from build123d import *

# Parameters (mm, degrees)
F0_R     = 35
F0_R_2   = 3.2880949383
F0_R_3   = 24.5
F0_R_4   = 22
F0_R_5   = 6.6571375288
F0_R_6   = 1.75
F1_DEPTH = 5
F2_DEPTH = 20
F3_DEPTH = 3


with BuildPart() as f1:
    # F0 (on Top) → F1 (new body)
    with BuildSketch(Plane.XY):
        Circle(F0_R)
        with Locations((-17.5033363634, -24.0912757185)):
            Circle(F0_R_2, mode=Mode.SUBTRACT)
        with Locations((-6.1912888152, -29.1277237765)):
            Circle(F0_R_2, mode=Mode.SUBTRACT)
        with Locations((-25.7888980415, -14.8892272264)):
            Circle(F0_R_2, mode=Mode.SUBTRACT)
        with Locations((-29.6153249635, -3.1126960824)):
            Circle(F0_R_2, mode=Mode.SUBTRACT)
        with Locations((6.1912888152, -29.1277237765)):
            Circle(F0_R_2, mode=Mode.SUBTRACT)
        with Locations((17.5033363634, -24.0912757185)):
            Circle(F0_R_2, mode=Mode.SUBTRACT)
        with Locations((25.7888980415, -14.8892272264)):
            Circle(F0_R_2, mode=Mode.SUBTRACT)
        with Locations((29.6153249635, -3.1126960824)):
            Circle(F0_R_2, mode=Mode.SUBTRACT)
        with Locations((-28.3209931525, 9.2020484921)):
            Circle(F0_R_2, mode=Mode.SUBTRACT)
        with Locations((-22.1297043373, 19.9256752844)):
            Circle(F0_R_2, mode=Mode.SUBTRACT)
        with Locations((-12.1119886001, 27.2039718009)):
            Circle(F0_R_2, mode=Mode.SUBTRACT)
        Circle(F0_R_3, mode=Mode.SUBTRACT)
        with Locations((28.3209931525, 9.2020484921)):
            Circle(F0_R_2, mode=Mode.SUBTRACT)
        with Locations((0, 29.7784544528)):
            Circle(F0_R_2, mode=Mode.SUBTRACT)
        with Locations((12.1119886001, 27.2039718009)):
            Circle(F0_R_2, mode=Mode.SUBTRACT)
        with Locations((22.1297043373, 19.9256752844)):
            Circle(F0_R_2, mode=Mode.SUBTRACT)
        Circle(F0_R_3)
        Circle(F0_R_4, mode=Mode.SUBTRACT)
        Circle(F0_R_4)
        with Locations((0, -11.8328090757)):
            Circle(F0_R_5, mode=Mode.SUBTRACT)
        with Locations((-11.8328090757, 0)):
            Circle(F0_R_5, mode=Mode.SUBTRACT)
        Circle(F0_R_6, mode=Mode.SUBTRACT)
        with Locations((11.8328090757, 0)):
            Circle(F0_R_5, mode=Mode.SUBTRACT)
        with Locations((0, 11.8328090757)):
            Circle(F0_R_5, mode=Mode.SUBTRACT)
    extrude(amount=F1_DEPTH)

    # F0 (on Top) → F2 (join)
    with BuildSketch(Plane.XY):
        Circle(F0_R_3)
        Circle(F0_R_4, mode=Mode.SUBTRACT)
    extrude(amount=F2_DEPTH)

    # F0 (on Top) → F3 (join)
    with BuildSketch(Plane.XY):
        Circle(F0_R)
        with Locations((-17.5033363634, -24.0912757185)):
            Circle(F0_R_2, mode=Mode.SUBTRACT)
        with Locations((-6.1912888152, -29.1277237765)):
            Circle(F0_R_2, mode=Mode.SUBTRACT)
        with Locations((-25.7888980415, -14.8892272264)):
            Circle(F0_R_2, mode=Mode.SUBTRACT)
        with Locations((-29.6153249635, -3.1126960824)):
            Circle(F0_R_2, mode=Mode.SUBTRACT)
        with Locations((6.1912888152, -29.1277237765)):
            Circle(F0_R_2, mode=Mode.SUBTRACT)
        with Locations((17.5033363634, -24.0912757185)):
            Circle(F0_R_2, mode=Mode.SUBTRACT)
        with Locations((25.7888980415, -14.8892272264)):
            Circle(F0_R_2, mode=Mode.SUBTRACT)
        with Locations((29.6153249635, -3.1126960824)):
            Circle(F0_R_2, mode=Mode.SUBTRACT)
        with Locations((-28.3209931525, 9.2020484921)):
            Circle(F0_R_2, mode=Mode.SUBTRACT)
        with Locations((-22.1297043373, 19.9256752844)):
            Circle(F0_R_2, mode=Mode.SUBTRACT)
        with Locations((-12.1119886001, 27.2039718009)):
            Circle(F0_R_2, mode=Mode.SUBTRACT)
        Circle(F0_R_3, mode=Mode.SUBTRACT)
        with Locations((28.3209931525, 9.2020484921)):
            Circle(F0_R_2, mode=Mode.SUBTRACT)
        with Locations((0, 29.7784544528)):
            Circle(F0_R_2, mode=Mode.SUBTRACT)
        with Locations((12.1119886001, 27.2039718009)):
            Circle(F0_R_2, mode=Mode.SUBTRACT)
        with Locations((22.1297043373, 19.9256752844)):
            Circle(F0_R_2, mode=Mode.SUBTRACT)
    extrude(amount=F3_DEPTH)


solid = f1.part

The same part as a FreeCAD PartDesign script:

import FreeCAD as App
import Part
import Sketcher

V = App.Vector
Q = App.Units.Quantity

doc = App.newDocument("Part")
body = doc.addObject("PartDesign::Body", "Body")

sketch1 = doc.addObject("Sketcher::SketchObject", "Sketch")
body.addObject(sketch1)
sketch1.AttachmentSupport = (doc.XY_Plane, [""])
sketch1.MapMode = "FlatFace"
sketch1.addGeometry([
    Part.Circle(V(0, 0, 0), V(0, 0, 1), 35),
    Part.Circle(V(-17.5, -24.1, 0), V(0, 0, 1), 3.3),
    Part.Circle(V(-6.2, -29.1, 0), V(0, 0, 1), 3.3),
    Part.Circle(V(-25.8, -14.9, 0), V(0, 0, 1), 3.3),
    Part.Circle(V(-29.6, -3.1, 0), V(0, 0, 1), 3.3),
    Part.Circle(V(-11.8, 0, 0), V(0, 0, 1), 6.7),
    Part.Circle(V(6.2, -29.1, 0), V(0, 0, 1), 3.3),
    Part.Circle(V(17.5, -24.1, 0), V(0, 0, 1), 3.3),
    Part.Circle(V(0, -11.8, 0), V(0, 0, 1), 6.7),
    Part.Circle(V(0, 0, 0), V(0, 0, 1), 1.8),
    Part.Circle(V(11.8, 0, 0), V(0, 0, 1), 6.7),
    Part.Circle(V(25.8, -14.9, 0), V(0, 0, 1), 3.3),
    Part.Circle(V(29.6, -3.1, 0), V(0, 0, 1), 3.3),
    Part.Circle(V(-28.3, 9.2, 0), V(0, 0, 1), 3.3),
    Part.Circle(V(-22.1, 19.9, 0), V(0, 0, 1), 3.3),
    Part.Circle(V(-12.1, 27.2, 0), V(0, 0, 1), 3.3),
    Part.Circle(V(0, 11.8, 0), V(0, 0, 1), 6.7),
    Part.Circle(V(28.3, 9.2, 0), V(0, 0, 1), 3.3),
    Part.Circle(V(0, 29.8, 0), V(0, 0, 1), 3.3),
    Part.Circle(V(12.1, 27.2, 0), V(0, 0, 1), 3.3),
    Part.Circle(V(22.1, 19.9, 0), V(0, 0, 1), 3.3),
], False)
sketch1.addConstraint([
    Sketcher.Constraint("Coincident", 0, 3, -1, 1),
    Sketcher.Constraint("Coincident", 9, 3, -1, 1),
    Sketcher.Constraint("Equal", 1, 2),
    Sketcher.Constraint("Equal", 2, 3),
    Sketcher.Constraint("Equal", 3, 4),
    Sketcher.Constraint("Equal", 4, 6),
    Sketcher.Constraint("Equal", 6, 7),
    Sketcher.Constraint("Equal", 5, 8),
    Sketcher.Constraint("Equal", 8, 10),
    Sketcher.Constraint("Equal", 7, 11),
    Sketcher.Constraint("Equal", 11, 12),
    Sketcher.Constraint("Equal", 12, 13),
    Sketcher.Constraint("Equal", 13, 14),
    Sketcher.Constraint("Equal", 14, 15),
    Sketcher.Constraint("Equal", 10, 16),
    Sketcher.Constraint("Equal", 15, 17),
    Sketcher.Constraint("Equal", 17, 18),
    Sketcher.Constraint("Equal", 18, 19),
    Sketcher.Constraint("Equal", 19, 20),
    Sketcher.Constraint("Symmetric", 5, 3, 10, 3, -1, 1),
    Sketcher.Constraint("Symmetric", 8, 3, 16, 3, -1, 1),
    Sketcher.Constraint("Symmetric", 2, 3, 6, 3, -2),
    Sketcher.Constraint("Symmetric", 1, 3, 7, 3, -2),
    Sketcher.Constraint("Symmetric", 3, 3, 11, 3, -2),
    Sketcher.Constraint("Symmetric", 4, 3, 12, 3, -2),
    Sketcher.Constraint("Symmetric", 13, 3, 17, 3, -2),
    Sketcher.Constraint("Symmetric", 15, 3, 19, 3, -2),
    Sketcher.Constraint("Symmetric", 14, 3, 20, 3, -2),
    Sketcher.Constraint("PointOnObject", 5, 3, -1),
    Sketcher.Constraint("PointOnObject", 8, 3, -2),
    Sketcher.Constraint("PointOnObject", 18, 3, -2),
    Sketcher.Constraint("Diameter", 0, Q("70 mm")),
    Sketcher.Constraint("Diameter", 9, Q("3.5 mm")),
    Sketcher.Constraint("Diameter", 1, Q("6.57619 mm")),
    Sketcher.Constraint("Diameter", 5, Q("13.314275 mm")),
    Sketcher.Constraint("DistanceX", 3, 3, -1, 1, Q("25.788898 mm")),
    Sketcher.Constraint("DistanceX", 2, 3, -1, 1, Q("6.191289 mm")),
    Sketcher.Constraint("DistanceX", 5, 3, -1, 1, Q("11.832809 mm")),
    Sketcher.Constraint("DistanceY", 8, 3, -1, 1, Q("11.832809 mm")),
    Sketcher.Constraint("DistanceY", -1, 1, 13, 3, Q("9.202048 mm")),
    Sketcher.Constraint("DistanceX", 15, 3, -1, 1, Q("12.111989 mm")),
    Sketcher.Constraint("DistanceY", -1, 1, 15, 3, Q("27.203972 mm")),
    Sketcher.Constraint("DistanceY", 2, 3, 1, 3, Q("5.036448 mm")),
    Sketcher.Constraint("DistanceX", 3, 3, 1, 3, Q("8.285562 mm")),
    Sketcher.Constraint("DistanceY", 1, 3, 3, 3, Q("9.202048 mm")),
    Sketcher.Constraint("DistanceY", 3, 3, 4, 3, Q("11.776531 mm")),
    Sketcher.Constraint("DistanceX", 4, 3, 1, 3, Q("12.111989 mm")),
    Sketcher.Constraint("DistanceY", 11, 3, 8, 3, Q("3.056418 mm")),
    Sketcher.Constraint("DistanceX", 4, 3, 13, 3, Q("1.294332 mm")),
    Sketcher.Constraint("DistanceX", 13, 3, 14, 3, Q("6.191289 mm")),
    Sketcher.Constraint("DistanceY", 4, 3, 14, 3, Q("23.038371 mm")),
    Sketcher.Constraint("DistanceY", 14, 3, 18, 3, Q("9.852779 mm")),
])
pad1 = doc.addObject("PartDesign::Pad", "Pad")
body.addObject(pad1)
pad1.Profile = sketch1
pad1.Length = 5

sketch2 = doc.addObject("Sketcher::SketchObject", "Sketch001")
body.addObject(sketch2)
sketch2.AttachmentSupport = (doc.XY_Plane, [""])
sketch2.MapMode = "FlatFace"
sketch2.addGeometry([
    Part.Circle(V(0, 0, 0), V(0, 0, 1), 24),
    Part.Circle(V(0, 0, 0), V(0, 0, 1), 22),
], False)
sketch2.addConstraint([
    Sketcher.Constraint("Coincident", 0, 3, -1, 1),
    Sketcher.Constraint("Coincident", 1, 3, -1, 1),
    Sketcher.Constraint("Diameter", 0, Q("49 mm")),
    Sketcher.Constraint("Diameter", 1, Q("44 mm")),
])
pad2 = doc.addObject("PartDesign::Pad", "Pad001")
body.addObject(pad2)
pad2.Profile = sketch2
pad2.Length = 20

sketch3 = doc.addObject("Sketcher::SketchObject", "Sketch002")
body.addObject(sketch3)
sketch3.AttachmentSupport = (doc.XY_Plane, [""])
sketch3.MapMode = "FlatFace"
sketch3.addGeometry([
    Part.Circle(V(0, 0, 0), V(0, 0, 1), 35),
    Part.Circle(V(-17.5, -24.1, 0), V(0, 0, 1), 3.3),
    Part.Circle(V(-6.2, -29.1, 0), V(0, 0, 1), 3.3),
    Part.Circle(V(-25.8, -14.9, 0), V(0, 0, 1), 3.3),
    Part.Circle(V(-29.6, -3.1, 0), V(0, 0, 1), 3.3),
    Part.Circle(V(6.2, -29.1, 0), V(0, 0, 1), 3.3),
    Part.Circle(V(17.5, -24.1, 0), V(0, 0, 1), 3.3),
    Part.Circle(V(0, 0, 0), V(0, 0, 1), 24.5),
    Part.Circle(V(25.8, -14.9, 0), V(0, 0, 1), 3.3),
    Part.Circle(V(29.6, -3.1, 0), V(0, 0, 1), 3.3),
    Part.Circle(V(-28.3, 9.2, 0), V(0, 0, 1), 3.3),
    Part.Circle(V(-22.1, 19.9, 0), V(0, 0, 1), 3.3),
    Part.Circle(V(-12.1, 27.2, 0), V(0, 0, 1), 3.3),
    Part.Circle(V(28.3, 9.2, 0), V(0, 0, 1), 3.3),
    Part.Circle(V(0, 29.8, 0), V(0, 0, 1), 3.3),
    Part.Circle(V(12.1, 27.2, 0), V(0, 0, 1), 3.3),
    Part.Circle(V(22.1, 19.9, 0), V(0, 0, 1), 3.3),
], False)
sketch3.addConstraint([
    Sketcher.Constraint("Coincident", 0, 3, -1, 1),
    Sketcher.Constraint("Coincident", 7, 3, -1, 1),
    Sketcher.Constraint("Equal", 1, 2),
    Sketcher.Constraint("Equal", 2, 3),
    Sketcher.Constraint("Equal", 3, 4),
    Sketcher.Constraint("Equal", 4, 5),
    Sketcher.Constraint("Equal", 5, 6),
    Sketcher.Constraint("Equal", 6, 8),
    Sketcher.Constraint("Equal", 8, 9),
    Sketcher.Constraint("Equal", 9, 10),
    Sketcher.Constraint("Equal", 10, 11),
    Sketcher.Constraint("Equal", 11, 12),
    Sketcher.Constraint("Equal", 12, 13),
    Sketcher.Constraint("Equal", 13, 14),
    Sketcher.Constraint("Equal", 14, 15),
    Sketcher.Constraint("Equal", 15, 16),
    Sketcher.Constraint("Symmetric", 2, 3, 5, 3, -2),
    Sketcher.Constraint("Symmetric", 1, 3, 6, 3, -2),
    Sketcher.Constraint("Symmetric", 3, 3, 8, 3, -2),
    Sketcher.Constraint("Symmetric", 4, 3, 9, 3, -2),
    Sketcher.Constraint("Symmetric", 10, 3, 13, 3, -2),
    Sketcher.Constraint("Symmetric", 12, 3, 15, 3, -2),
    Sketcher.Constraint("Symmetric", 11, 3, 16, 3, -2),
    Sketcher.Constraint("PointOnObject", 14, 3, -2),
    Sketcher.Constraint("Diameter", 0, Q("70 mm")),
    Sketcher.Constraint("Diameter", 7, Q("49 mm")),
    Sketcher.Constraint("Diameter", 1, Q("6.57619 mm")),
    Sketcher.Constraint("DistanceX", 3, 3, -1, 1, Q("25.788898 mm")),
    Sketcher.Constraint("DistanceX", 2, 3, -1, 1, Q("6.191289 mm")),
    Sketcher.Constraint("DistanceY", -1, 1, 10, 3, Q("9.202048 mm")),
    Sketcher.Constraint("DistanceX", 12, 3, -1, 1, Q("12.111989 mm")),
    Sketcher.Constraint("DistanceY", -1, 1, 12, 3, Q("27.203972 mm")),
    Sketcher.Constraint("DistanceY", 2, 3, 1, 3, Q("5.036448 mm")),
    Sketcher.Constraint("DistanceX", 3, 3, 1, 3, Q("8.285562 mm")),
    Sketcher.Constraint("DistanceY", 1, 3, 3, 3, Q("9.202048 mm")),
    Sketcher.Constraint("DistanceY", 3, 3, 4, 3, Q("11.776531 mm")),
    Sketcher.Constraint("DistanceX", 4, 3, 1, 3, Q("12.111989 mm")),
    Sketcher.Constraint("DistanceX", 4, 3, 10, 3, Q("1.294332 mm")),
    Sketcher.Constraint("DistanceX", 10, 3, 11, 3, Q("6.191289 mm")),
    Sketcher.Constraint("DistanceY", 4, 3, 11, 3, Q("23.038371 mm")),
    Sketcher.Constraint("DistanceY", 11, 3, 14, 3, Q("9.852779 mm")),
    Sketcher.Constraint("DistanceY", 1, 3, -1, 1, Q("24.091276 mm")),
])
pad3 = doc.addObject("PartDesign::Pad", "Pad002")
body.addObject(pad3)
pad3.Profile = sketch3
pad3.Length = 3

doc.recompute()
